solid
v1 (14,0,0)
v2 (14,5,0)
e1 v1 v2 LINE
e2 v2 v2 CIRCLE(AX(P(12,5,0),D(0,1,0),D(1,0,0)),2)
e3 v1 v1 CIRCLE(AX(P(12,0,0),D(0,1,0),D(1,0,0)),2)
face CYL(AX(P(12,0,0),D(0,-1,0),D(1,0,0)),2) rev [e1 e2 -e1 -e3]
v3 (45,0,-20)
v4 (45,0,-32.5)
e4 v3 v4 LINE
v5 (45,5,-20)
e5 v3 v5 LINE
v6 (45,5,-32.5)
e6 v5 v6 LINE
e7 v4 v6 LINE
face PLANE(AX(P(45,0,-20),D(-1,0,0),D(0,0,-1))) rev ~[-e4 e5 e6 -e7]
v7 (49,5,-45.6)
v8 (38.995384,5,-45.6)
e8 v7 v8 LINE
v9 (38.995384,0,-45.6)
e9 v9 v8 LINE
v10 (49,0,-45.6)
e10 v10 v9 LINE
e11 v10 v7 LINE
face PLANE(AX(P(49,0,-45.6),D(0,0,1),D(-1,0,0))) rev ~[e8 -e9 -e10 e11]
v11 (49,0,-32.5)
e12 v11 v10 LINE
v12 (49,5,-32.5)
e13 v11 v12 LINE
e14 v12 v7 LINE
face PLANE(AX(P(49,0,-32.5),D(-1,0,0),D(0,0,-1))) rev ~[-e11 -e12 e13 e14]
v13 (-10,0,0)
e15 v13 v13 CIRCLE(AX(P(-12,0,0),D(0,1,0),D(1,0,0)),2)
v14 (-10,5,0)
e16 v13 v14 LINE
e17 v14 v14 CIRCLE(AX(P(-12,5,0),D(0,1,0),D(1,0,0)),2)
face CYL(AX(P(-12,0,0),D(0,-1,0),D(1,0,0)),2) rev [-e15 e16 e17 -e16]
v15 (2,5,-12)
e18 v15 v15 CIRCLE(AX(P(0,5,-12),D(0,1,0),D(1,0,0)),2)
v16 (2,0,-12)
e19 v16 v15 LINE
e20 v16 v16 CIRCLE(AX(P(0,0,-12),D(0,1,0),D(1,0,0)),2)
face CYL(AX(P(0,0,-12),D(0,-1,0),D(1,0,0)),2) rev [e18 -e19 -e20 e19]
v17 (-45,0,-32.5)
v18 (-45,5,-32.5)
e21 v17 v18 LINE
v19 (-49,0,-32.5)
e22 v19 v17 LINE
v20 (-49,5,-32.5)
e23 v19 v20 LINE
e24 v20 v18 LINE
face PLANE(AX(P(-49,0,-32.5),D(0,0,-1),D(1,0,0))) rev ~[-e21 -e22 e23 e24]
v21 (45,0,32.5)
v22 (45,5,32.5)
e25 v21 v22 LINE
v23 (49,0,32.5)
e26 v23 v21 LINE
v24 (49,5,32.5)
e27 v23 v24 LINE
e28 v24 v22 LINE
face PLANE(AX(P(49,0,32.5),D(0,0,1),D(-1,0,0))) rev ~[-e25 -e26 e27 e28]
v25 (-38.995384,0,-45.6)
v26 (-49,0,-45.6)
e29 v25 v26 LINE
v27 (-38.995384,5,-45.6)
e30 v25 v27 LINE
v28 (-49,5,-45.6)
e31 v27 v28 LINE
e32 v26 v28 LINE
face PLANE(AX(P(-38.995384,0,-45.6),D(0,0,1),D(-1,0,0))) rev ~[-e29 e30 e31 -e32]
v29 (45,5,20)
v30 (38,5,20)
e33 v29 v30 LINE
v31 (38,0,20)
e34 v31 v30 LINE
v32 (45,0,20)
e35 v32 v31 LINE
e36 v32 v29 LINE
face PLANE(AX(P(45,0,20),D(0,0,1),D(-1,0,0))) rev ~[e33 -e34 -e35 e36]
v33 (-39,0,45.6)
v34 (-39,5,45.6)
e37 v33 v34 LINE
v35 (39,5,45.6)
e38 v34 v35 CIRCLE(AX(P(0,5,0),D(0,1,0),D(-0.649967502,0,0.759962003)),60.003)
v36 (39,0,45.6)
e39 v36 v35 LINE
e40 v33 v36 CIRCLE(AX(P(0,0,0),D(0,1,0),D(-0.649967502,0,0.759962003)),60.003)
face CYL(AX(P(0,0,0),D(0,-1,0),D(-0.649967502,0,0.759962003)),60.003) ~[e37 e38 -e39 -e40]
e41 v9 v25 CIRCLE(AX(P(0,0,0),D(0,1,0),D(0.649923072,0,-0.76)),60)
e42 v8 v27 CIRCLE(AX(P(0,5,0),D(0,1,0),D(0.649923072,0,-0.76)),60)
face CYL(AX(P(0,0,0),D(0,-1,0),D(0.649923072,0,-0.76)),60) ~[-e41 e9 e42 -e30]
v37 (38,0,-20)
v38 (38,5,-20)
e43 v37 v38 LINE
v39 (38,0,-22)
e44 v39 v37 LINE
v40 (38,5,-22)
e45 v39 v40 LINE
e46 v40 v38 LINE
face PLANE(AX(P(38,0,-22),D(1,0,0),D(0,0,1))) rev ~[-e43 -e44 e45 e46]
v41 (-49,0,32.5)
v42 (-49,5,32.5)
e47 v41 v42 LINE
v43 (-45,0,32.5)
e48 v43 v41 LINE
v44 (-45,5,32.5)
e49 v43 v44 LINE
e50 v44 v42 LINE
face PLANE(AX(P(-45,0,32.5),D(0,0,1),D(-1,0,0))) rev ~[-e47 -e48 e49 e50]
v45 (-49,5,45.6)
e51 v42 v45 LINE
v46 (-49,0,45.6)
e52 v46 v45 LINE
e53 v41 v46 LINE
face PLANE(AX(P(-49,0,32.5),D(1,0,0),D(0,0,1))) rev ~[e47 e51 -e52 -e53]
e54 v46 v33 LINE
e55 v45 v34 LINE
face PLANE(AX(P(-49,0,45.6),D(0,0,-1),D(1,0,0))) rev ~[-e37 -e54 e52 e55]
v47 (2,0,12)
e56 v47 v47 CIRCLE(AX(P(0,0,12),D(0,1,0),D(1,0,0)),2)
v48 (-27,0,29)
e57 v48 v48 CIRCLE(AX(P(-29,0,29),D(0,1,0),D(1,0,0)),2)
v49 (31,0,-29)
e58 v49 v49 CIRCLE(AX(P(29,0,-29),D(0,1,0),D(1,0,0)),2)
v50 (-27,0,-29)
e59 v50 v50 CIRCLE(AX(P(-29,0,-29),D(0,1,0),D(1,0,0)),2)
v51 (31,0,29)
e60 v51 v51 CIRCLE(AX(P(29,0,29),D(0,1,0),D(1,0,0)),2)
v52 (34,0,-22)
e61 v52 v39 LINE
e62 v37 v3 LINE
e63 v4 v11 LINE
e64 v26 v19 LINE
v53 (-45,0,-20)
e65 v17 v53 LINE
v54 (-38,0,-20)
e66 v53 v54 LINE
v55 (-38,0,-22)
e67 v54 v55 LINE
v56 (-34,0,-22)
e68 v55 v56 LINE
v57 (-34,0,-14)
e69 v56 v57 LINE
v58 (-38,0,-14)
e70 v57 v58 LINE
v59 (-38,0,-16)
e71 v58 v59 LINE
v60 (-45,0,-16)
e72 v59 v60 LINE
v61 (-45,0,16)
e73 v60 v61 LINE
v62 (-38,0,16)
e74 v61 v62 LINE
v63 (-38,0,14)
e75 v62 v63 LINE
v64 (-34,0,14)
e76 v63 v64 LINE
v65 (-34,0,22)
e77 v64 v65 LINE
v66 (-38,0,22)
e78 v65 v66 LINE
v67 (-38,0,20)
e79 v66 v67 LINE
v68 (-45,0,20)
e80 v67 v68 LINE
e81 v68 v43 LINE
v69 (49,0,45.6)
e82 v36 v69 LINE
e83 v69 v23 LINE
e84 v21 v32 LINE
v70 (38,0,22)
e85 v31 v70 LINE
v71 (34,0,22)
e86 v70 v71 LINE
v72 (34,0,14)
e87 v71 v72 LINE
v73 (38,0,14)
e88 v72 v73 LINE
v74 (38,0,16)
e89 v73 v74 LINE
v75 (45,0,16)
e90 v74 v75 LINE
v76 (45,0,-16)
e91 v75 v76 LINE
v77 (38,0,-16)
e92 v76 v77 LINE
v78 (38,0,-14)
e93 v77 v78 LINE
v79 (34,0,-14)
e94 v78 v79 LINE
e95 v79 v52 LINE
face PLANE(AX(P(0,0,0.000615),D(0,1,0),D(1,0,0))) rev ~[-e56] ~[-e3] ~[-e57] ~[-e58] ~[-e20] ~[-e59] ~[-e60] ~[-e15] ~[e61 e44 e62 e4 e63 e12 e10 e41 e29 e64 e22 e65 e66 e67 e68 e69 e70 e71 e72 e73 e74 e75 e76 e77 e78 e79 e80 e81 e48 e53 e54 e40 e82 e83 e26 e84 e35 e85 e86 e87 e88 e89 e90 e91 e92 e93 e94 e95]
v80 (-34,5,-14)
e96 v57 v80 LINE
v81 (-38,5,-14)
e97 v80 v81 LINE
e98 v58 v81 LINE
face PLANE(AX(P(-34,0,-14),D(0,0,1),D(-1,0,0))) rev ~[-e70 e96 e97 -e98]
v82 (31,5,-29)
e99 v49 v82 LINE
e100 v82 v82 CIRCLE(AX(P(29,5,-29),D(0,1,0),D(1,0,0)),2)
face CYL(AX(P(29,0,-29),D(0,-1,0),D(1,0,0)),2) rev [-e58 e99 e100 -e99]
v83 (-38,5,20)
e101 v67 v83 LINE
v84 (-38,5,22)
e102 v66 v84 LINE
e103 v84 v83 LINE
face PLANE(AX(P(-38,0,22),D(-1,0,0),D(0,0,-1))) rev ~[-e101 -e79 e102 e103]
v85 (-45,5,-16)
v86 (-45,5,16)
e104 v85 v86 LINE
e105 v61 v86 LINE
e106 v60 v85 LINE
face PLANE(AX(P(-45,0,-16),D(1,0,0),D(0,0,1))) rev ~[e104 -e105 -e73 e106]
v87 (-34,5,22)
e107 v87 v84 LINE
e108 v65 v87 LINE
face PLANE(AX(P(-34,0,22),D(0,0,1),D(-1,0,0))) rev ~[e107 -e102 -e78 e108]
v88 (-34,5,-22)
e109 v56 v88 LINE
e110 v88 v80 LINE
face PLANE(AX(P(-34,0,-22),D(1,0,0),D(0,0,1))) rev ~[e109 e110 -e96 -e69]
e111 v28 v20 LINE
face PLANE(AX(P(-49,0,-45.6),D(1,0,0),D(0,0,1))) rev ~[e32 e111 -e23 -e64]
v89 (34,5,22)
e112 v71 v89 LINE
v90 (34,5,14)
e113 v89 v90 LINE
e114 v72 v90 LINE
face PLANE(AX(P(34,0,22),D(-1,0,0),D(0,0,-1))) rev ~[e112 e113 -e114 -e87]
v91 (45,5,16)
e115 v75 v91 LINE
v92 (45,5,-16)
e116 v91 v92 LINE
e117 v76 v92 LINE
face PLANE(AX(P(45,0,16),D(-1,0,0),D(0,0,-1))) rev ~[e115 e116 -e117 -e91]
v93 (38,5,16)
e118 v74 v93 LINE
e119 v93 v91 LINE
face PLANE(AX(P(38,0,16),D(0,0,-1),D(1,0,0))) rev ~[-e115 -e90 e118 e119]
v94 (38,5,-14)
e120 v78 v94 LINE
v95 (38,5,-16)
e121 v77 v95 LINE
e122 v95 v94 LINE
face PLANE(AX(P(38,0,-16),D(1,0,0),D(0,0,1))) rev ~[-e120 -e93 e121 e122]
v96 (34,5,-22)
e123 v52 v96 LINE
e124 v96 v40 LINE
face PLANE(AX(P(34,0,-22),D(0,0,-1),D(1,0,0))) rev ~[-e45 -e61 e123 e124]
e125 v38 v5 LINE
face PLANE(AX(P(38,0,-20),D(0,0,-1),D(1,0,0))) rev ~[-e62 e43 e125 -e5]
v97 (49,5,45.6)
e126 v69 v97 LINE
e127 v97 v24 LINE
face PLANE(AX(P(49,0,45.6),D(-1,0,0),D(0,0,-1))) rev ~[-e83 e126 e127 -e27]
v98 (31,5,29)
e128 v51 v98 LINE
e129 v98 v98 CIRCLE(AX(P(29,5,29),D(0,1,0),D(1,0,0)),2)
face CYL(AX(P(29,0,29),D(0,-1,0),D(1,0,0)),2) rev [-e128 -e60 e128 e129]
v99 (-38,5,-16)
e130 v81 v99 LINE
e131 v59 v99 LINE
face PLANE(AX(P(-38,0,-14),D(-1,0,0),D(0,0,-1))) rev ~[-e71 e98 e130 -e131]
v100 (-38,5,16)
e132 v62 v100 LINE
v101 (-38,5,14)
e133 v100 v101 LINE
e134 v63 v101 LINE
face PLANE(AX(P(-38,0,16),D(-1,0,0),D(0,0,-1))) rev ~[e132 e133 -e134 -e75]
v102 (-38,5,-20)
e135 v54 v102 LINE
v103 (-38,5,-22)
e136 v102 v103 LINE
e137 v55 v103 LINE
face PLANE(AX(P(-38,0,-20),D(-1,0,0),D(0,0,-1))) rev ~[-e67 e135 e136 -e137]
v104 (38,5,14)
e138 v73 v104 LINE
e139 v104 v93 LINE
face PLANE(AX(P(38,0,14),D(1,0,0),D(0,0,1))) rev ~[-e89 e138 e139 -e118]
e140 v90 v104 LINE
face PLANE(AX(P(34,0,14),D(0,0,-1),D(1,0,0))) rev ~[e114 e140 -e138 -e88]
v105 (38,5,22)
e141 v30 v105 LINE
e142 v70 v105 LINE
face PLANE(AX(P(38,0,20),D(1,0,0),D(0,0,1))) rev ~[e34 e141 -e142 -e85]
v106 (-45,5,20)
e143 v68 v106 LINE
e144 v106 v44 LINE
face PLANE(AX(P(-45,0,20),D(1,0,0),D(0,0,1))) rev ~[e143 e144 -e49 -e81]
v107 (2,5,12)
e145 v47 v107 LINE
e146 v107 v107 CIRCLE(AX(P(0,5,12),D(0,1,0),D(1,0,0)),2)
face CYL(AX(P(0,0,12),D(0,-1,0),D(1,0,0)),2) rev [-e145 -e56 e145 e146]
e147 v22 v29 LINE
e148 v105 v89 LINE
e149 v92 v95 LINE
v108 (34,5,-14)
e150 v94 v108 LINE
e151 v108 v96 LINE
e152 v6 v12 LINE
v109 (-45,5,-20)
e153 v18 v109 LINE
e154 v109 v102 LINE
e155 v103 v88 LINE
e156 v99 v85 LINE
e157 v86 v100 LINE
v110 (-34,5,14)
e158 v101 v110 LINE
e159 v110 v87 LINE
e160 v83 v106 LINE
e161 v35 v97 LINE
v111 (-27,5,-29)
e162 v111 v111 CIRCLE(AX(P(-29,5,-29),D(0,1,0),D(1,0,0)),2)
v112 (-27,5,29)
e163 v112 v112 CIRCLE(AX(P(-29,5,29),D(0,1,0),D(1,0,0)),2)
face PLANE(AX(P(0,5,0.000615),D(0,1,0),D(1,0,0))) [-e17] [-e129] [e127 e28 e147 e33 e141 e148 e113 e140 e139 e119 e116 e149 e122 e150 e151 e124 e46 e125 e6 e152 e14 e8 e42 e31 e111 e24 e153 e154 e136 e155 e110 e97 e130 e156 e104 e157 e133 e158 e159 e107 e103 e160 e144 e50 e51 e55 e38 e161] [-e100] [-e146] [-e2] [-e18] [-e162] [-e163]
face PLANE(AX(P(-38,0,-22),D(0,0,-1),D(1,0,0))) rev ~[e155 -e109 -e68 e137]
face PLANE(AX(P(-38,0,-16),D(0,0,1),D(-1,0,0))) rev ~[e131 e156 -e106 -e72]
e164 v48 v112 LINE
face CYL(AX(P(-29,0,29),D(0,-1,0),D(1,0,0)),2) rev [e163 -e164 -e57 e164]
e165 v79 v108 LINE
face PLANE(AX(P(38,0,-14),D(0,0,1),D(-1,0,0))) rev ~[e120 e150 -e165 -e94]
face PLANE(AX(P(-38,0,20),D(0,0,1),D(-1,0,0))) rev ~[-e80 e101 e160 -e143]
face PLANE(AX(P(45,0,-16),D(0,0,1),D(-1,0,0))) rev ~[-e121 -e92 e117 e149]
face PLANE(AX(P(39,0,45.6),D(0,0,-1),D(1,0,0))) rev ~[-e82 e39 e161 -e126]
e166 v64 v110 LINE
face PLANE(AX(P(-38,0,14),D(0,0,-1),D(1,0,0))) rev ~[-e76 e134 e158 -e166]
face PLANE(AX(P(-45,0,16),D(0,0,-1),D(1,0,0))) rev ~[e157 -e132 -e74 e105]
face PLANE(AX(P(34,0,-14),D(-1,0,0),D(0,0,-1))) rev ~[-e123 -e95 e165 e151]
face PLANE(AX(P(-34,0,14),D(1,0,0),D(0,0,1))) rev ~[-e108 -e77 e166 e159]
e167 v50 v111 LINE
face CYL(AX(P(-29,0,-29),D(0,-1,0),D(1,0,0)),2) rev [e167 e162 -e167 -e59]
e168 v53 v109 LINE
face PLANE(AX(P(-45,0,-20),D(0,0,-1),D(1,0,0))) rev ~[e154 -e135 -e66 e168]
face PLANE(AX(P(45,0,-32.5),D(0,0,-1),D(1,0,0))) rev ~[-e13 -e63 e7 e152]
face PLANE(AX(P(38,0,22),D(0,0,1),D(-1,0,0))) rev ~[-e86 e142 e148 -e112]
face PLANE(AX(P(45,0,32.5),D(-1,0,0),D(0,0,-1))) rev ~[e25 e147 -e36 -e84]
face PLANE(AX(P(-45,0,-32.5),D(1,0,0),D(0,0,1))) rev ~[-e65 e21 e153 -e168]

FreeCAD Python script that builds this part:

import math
import FreeCAD as App
import Part
import Sketcher
from FreeCAD import Vector

doc = App.newDocument("Part")
body = doc.addObject("PartDesign::Body", "Body")

# Sketch on XZ plane
sketch1 = body.newObject("Sketcher::SketchObject", "Sketch")
sketch1.AttachmentSupport = (doc.getObject("XZ_Plane"), [""])
sketch1.MapMode = "FlatFace"
sketch1.addGeometry([
    Part.LineSegment(Vector(-49, -45.6, 0), Vector(-49, -32.5, 0)),  # 0
    Part.LineSegment(Vector(-49, -32.5, 0), Vector(-45, -32.5, 0)),  # 1
    Part.LineSegment(Vector(-45, -32.5, 0), Vector(-45, -20, 0)),  # 2
    Part.LineSegment(Vector(-45, -20, 0), Vector(-38, -20, 0)),  # 3
    Part.LineSegment(Vector(-38, -20, 0), Vector(-38, -22, 0)),  # 4
    Part.LineSegment(Vector(-38, -22, 0), Vector(-34, -22, 0)),  # 5
    Part.LineSegment(Vector(-34, -22, 0), Vector(-34, -14, 0)),  # 6
    Part.LineSegment(Vector(-34, -14, 0), Vector(-38, -14, 0)),  # 7
    Part.LineSegment(Vector(-38, -14, 0), Vector(-38, -16, 0)),  # 8
    Part.LineSegment(Vector(-38, -16, 0), Vector(-45, -16, 0)),  # 9
    Part.LineSegment(Vector(-45, -16, 0), Vector(-45, 16, 0)),  # 10
    Part.LineSegment(Vector(-45, 16, 0), Vector(-38, 16, 0)),  # 11
    Part.LineSegment(Vector(-38, 16, 0), Vector(-38, 14, 0)),  # 12
    Part.LineSegment(Vector(-38, 14, 0), Vector(-34, 14, 0)),  # 13
    Part.LineSegment(Vector(-34, 14, 0), Vector(-34, 22, 0)),  # 14
    Part.LineSegment(Vector(-34, 22, 0), Vector(-38, 22, 0)),  # 15
    Part.LineSegment(Vector(-38, 22, 0), Vector(-38, 20, 0)),  # 16
    Part.LineSegment(Vector(-38, 20, 0), Vector(-45, 20, 0)),  # 17
    Part.LineSegment(Vector(-45, 20, 0), Vector(-45, 32.5, 0)),  # 18
    Part.LineSegment(Vector(-45, 32.5, 0), Vector(-49, 32.5, 0)),  # 19
    Part.LineSegment(Vector(-49, 32.5, 0), Vector(-49, 45.6, 0)),  # 20
    Part.LineSegment(Vector(-49, 45.6, 0), Vector(-39, 45.6, 0)),  # 21
    Part.ArcOfCircle(Part.Circle(Vector(0, 0, 0), Vector(0, 0, 1), 60), math.radians(49), math.radians(131)),  # 22
    Part.LineSegment(Vector(39, 45.6, 0), Vector(49, 45.6, 0)),  # 23
    Part.LineSegment(Vector(49, 45.6, 0), Vector(49, 32.5, 0)),  # 24
    Part.LineSegment(Vector(49, 32.5, 0), Vector(45, 32.5, 0)),  # 25
    Part.LineSegment(Vector(45, 32.5, 0), Vector(45, 20, 0)),  # 26
    Part.LineSegment(Vector(45, 20, 0), Vector(38, 20, 0)),  # 27
    Part.LineSegment(Vector(38, 20, 0), Vector(38, 22, 0)),  # 28
    Part.LineSegment(Vector(38, 22, 0), Vector(34, 22, 0)),  # 29
    Part.LineSegment(Vector(34, 22, 0), Vector(34, 14, 0)),  # 30
    Part.LineSegment(Vector(34, 14, 0), Vector(38, 14, 0)),  # 31
    Part.LineSegment(Vector(38, 14, 0), Vector(38, 16, 0)),  # 32
    Part.LineSegment(Vector(38, 16, 0), Vector(45, 16, 0)),  # 33
    Part.LineSegment(Vector(45, 16, 0), Vector(45, -16, 0)),  # 34
    Part.LineSegment(Vector(45, -16, 0), Vector(38, -16, 0)),  # 35
    Part.LineSegment(Vector(38, -16, 0), Vector(38, -14, 0)),  # 36
    Part.LineSegment(Vector(38, -14, 0), Vector(34, -14, 0)),  # 37
    Part.LineSegment(Vector(34, -14, 0), Vector(34, -22, 0)),  # 38
    Part.LineSegment(Vector(34, -22, 0), Vector(38, -22, 0)),  # 39
    Part.LineSegment(Vector(38, -22, 0), Vector(38, -20, 0)),  # 40
    Part.LineSegment(Vector(38, -20, 0), Vector(45, -20, 0)),  # 41
    Part.LineSegment(Vector(45, -20, 0), Vector(45, -32.5, 0)),  # 42
    Part.LineSegment(Vector(45, -32.5, 0), Vector(49, -32.5, 0)),  # 43
    Part.LineSegment(Vector(49, -32.5, 0), Vector(49, -45.6, 0)),  # 44
    Part.LineSegment(Vector(49, -45.6, 0), Vector(39, -45.6, 0)),  # 45
    Part.ArcOfCircle(Part.Circle(Vector(0, 0, 0), Vector(0, 0, 1), 60), math.radians(-131), math.radians(-49)),  # 46
    Part.LineSegment(Vector(-39, -45.6, 0), Vector(-49, -45.6, 0)),  # 47
    Part.Circle(Vector(-29, 29, 0), Vector(0, 0, 1), 2),  # 48
    Part.Circle(Vector(29, 29, 0), Vector(0, 0, 1), 2),  # 49
    Part.Circle(Vector(0, 12, 0), Vector(0, 0, 1), 2),  # 50
    Part.Circle(Vector(-12, 0, 0), Vector(0, 0, 1), 2),  # 51
    Part.Circle(Vector(-29, -29, 0), Vector(0, 0, 1), 2),  # 52
    Part.Circle(Vector(12, 0, 0), Vector(0, 0, 1), 2),  # 53
    Part.Circle(Vector(0, -12, 0), Vector(0, 0, 1), 2),  # 54
    Part.Circle(Vector(29, -29, 0), Vector(0, 0, 1), 2),  # 55
], False)
sketch1.addConstraint([
    Sketcher.Constraint("Coincident", 0, 2, 1, 1),
    Sketcher.Constraint("Coincident", 1, 2, 2, 1),
    Sketcher.Constraint("Coincident", 2, 2, 3, 1),
    Sketcher.Constraint("Coincident", 3, 2, 4, 1),
    Sketcher.Constraint("Coincident", 4, 2, 5, 1),
    Sketcher.Constraint("Coincident", 5, 2, 6, 1),
    Sketcher.Constraint("Coincident", 6, 2, 7, 1),
    Sketcher.Constraint("Coincident", 7, 2, 8, 1),
    Sketcher.Constraint("Coincident", 8, 2, 9, 1),
    Sketcher.Constraint("Coincident", 9, 2, 10, 1),
    Sketcher.Constraint("Coincident", 10, 2, 11, 1),
    Sketcher.Constraint("Coincident", 11, 2, 12, 1),
    Sketcher.Constraint("Coincident", 12, 2, 13, 1),
    Sketcher.Constraint("Coincident", 13, 2, 14, 1),
    Sketcher.Constraint("Coincident", 14, 2, 15, 1),
    Sketcher.Constraint("Coincident", 15, 2, 16, 1),
    Sketcher.Constraint("Coincident", 16, 2, 17, 1),
    Sketcher.Constraint("Coincident", 17, 2, 18, 1),
    Sketcher.Constraint("Coincident", 18, 2, 19, 1),
    Sketcher.Constraint("Coincident", 19, 2, 20, 1),
    Sketcher.Constraint("Coincident", 20, 2, 21, 1),
    Sketcher.Constraint("Coincident", 21, 2, 22, 2),
    Sketcher.Constraint("Coincident", 22, 1, 23, 1),
    Sketcher.Constraint("Coincident", 23, 2, 24, 1),
    Sketcher.Constraint("Coincident", 24, 2, 25, 1),
    Sketcher.Constraint("Coincident", 25, 2, 26, 1),
    Sketcher.Constraint("Coincident", 26, 2, 27, 1),
    Sketcher.Constraint("Coincident", 27, 2, 28, 1),
    Sketcher.Constraint("Coincident", 28, 2, 29, 1),
    Sketcher.Constraint("Coincident", 29, 2, 30, 1),
    Sketcher.Constraint("Coincident", 30, 2, 31, 1),
    Sketcher.Constraint("Coincident", 31, 2, 32, 1),
    Sketcher.Constraint("Coincident", 32, 2, 33, 1),
    Sketcher.Constraint("Coincident", 33, 2, 34, 1),
    Sketcher.Constraint("Coincident", 34, 2, 35, 1),
    Sketcher.Constraint("Coincident", 35, 2, 36, 1),
    Sketcher.Constraint("Coincident", 36, 2, 37, 1),
    Sketcher.Constraint("Coincident", 37, 2, 38, 1),
    Sketcher.Constraint("Coincident", 38, 2, 39, 1),
    Sketcher.Constraint("Coincident", 39, 2, 40, 1),
    Sketcher.Constraint("Coincident", 40, 2, 41, 1),
    Sketcher.Constraint("Coincident", 41, 2, 42, 1),
    Sketcher.Constraint("Coincident", 42, 2, 43, 1),
    Sketcher.Constraint("Coincident", 43, 2, 44, 1),
    Sketcher.Constraint("Coincident", 44, 2, 45, 1),
    Sketcher.Constraint("Coincident", 45, 2, 46, 2),
    Sketcher.Constraint("Coincident", 46, 1, 47, 1),
    Sketcher.Constraint("Coincident", 47, 2, 0, 1),
    Sketcher.Constraint("Vertical", 0),
    Sketcher.Constraint("Horizontal", 1),
    Sketcher.Constraint("Vertical", 2),
    Sketcher.Constraint("Horizontal", 3),
    Sketcher.Constraint("Vertical", 4),
    Sketcher.Constraint("Horizontal", 5),
    Sketcher.Constraint("Vertical", 6),
    Sketcher.Constraint("Horizontal", 7),
    Sketcher.Constraint("Vertical", 8),
    Sketcher.Constraint("Horizontal", 9),
    Sketcher.Constraint("Vertical", 10),
    Sketcher.Constraint("Horizontal", 11),
    Sketcher.Constraint("Vertical", 12),
    Sketcher.Constraint("Horizontal", 13),
    Sketcher.Constraint("Vertical", 14),
    Sketcher.Constraint("Horizontal", 15),
    Sketcher.Constraint("Vertical", 16),
    Sketcher.Constraint("Horizontal", 17),
    Sketcher.Constraint("Vertical", 18),
    Sketcher.Constraint("Horizontal", 19),
    Sketcher.Constraint("Vertical", 20),
    Sketcher.Constraint("Horizontal", 21),
    Sketcher.Constraint("Horizontal", 23),
    Sketcher.Constraint("Vertical", 24),
    Sketcher.Constraint("Horizontal", 25),
    Sketcher.Constraint("Vertical", 26),
    Sketcher.Constraint("Horizontal", 27),
    Sketcher.Constraint("Vertical", 28),
    Sketcher.Constraint("Horizontal", 29),
    Sketcher.Constraint("Vertical", 30),
    Sketcher.Constraint("Horizontal", 31),
    Sketcher.Constraint("Vertical", 32),
    Sketcher.Constraint("Horizontal", 33),
    Sketcher.Constraint("Vertical", 34),
    Sketcher.Constraint("Horizontal", 35),
    Sketcher.Constraint("Vertical", 36),
    Sketcher.Constraint("Horizontal", 37),
    Sketcher.Constraint("Vertical", 38),
    Sketcher.Constraint("Horizontal", 39),
    Sketcher.Constraint("Vertical", 40),
    Sketcher.Constraint("Horizontal", 41),
    Sketcher.Constraint("Vertical", 42),
    Sketcher.Constraint("Horizontal", 43),
    Sketcher.Constraint("Vertical", 44),
    Sketcher.Constraint("Horizontal", 45),
    Sketcher.Constraint("Horizontal", 47),
    Sketcher.Constraint("Coincident", 22, 3, -1, 1),
    Sketcher.Constraint("Coincident", 46, 3, -1, 1),
    Sketcher.Constraint("Equal", 48, 49),
    Sketcher.Constraint("Equal", 49, 50),
    Sketcher.Constraint("Equal", 50, 51),
    Sketcher.Constraint("Equal", 51, 52),
    Sketcher.Constraint("Equal", 52, 53),
    Sketcher.Constraint("Equal", 53, 54),
    Sketcher.Constraint("Equal", 54, 55),
    Sketcher.Constraint("Symmetric", 49, 3, 52, 3, -1, 1),
    Sketcher.Constraint("Symmetric", 51, 3, 53, 3, -1, 1),
    Sketcher.Constraint("Symmetric", 50, 3, 54, 3, -1, 1),
    Sketcher.Constraint("Symmetric", 48, 3, 55, 3, -1, 1),
    Sketcher.Constraint("Symmetric", 0, 2, 24, 2, -1, 1),
    Sketcher.Constraint("Symmetric", 2, 2, 26, 2, -1, 1),
    Sketcher.Constraint("Symmetric", 4, 2, 28, 2, -1, 1),
    Sketcher.Constraint("Symmetric", 6, 2, 30, 2, -1, 1),
    Sketcher.Constraint("Symmetric", 8, 2, 32, 2, -1, 1),
    Sketcher.Constraint("Symmetric", 10, 2, 34, 2, -1, 1),
    Sketcher.Constraint("Symmetric", 12, 2, 36, 2, -1, 1),
    Sketcher.Constraint("Symmetric", 14, 2, 38, 2, -1, 1),
    Sketcher.Constraint("Symmetric", 16, 2, 40, 2, -1, 1),
    Sketcher.Constraint("Symmetric", 18, 2, 42, 2, -1, 1),
    Sketcher.Constraint("Symmetric", 20, 2, 44, 2, -1, 1),
    Sketcher.Constraint("Symmetric", 48, 3, 49, 3, -2),
    Sketcher.Constraint("Symmetric", 20, 2, 23, 2, -2),
    Sketcher.Constraint("Symmetric", 18, 2, 25, 2, -2),
    Sketcher.Constraint("Symmetric", 16, 2, 27, 2, -2),
    Sketcher.Constraint("Symmetric", 14, 2, 29, 2, -2),
    Sketcher.Constraint("Symmetric", 12, 2, 31, 2, -2),
    Sketcher.Constraint("PointOnObject", 50, 3, -2),
    Sketcher.Constraint("PointOnObject", 51, 3, -1),
    Sketcher.Constraint("Horizontal", 11, 2, 32, 2),
    Sketcher.Constraint("Horizontal", 45, 2, 46, 1),
    Sketcher.Constraint("Vertical", 4, 2, 7, 2),
    Sketcher.Constraint("Vertical", 2, 2, 9, 2),
    Sketcher.Constraint("Equal", 1, 5),
    Sketcher.Constraint("Equal", 4, 8),
    Sketcher.Constraint("Diameter", 48, 4.0),
    Sketcher.Constraint("Radius", 46, 60.0),
    Sketcher.Constraint("DistanceX", 1, 1, 1, 2, 4.0),
    Sketcher.Constraint("DistanceX", 3, 1, 3, 2, 7.0),
    Sketcher.Constraint("DistanceX", 21, 1, 21, 2, 10.0),
    Sketcher.Constraint("DistanceY", 4, 2, 4, 1, 2.0),
    Sketcher.Constraint("DistanceY", 6, 1, 6, 2, 8.0),
    Sketcher.Constraint("DistanceY", 10, 1, 10, 2, 32.0),
    Sketcher.Constraint("DistanceY", 0, 1, 0, 2, 13.1),
    Sketcher.Constraint("DistanceY", 2, 1, 2, 2, 12.5),
    Sketcher.Constraint("DistanceX", 48, 3, -1, 1, 29.0),
    Sketcher.Constraint("DistanceY", -1, 1, 48, 3, 29.0),
    Sketcher.Constraint("DistanceY", -1, 1, 50, 3, 12.0),
    Sketcher.Constraint("DistanceX", 51, 3, -1, 1, 12.0),
    Sketcher.Constraint("DistanceX", 0, 2, -1, 1, 49.0),
])
pad1 = body.newObject("PartDesign::Pad", "Pad")
pad1.Profile = sketch1
pad1.Length = 5
pad1.Reversed = True

doc.recompute()
